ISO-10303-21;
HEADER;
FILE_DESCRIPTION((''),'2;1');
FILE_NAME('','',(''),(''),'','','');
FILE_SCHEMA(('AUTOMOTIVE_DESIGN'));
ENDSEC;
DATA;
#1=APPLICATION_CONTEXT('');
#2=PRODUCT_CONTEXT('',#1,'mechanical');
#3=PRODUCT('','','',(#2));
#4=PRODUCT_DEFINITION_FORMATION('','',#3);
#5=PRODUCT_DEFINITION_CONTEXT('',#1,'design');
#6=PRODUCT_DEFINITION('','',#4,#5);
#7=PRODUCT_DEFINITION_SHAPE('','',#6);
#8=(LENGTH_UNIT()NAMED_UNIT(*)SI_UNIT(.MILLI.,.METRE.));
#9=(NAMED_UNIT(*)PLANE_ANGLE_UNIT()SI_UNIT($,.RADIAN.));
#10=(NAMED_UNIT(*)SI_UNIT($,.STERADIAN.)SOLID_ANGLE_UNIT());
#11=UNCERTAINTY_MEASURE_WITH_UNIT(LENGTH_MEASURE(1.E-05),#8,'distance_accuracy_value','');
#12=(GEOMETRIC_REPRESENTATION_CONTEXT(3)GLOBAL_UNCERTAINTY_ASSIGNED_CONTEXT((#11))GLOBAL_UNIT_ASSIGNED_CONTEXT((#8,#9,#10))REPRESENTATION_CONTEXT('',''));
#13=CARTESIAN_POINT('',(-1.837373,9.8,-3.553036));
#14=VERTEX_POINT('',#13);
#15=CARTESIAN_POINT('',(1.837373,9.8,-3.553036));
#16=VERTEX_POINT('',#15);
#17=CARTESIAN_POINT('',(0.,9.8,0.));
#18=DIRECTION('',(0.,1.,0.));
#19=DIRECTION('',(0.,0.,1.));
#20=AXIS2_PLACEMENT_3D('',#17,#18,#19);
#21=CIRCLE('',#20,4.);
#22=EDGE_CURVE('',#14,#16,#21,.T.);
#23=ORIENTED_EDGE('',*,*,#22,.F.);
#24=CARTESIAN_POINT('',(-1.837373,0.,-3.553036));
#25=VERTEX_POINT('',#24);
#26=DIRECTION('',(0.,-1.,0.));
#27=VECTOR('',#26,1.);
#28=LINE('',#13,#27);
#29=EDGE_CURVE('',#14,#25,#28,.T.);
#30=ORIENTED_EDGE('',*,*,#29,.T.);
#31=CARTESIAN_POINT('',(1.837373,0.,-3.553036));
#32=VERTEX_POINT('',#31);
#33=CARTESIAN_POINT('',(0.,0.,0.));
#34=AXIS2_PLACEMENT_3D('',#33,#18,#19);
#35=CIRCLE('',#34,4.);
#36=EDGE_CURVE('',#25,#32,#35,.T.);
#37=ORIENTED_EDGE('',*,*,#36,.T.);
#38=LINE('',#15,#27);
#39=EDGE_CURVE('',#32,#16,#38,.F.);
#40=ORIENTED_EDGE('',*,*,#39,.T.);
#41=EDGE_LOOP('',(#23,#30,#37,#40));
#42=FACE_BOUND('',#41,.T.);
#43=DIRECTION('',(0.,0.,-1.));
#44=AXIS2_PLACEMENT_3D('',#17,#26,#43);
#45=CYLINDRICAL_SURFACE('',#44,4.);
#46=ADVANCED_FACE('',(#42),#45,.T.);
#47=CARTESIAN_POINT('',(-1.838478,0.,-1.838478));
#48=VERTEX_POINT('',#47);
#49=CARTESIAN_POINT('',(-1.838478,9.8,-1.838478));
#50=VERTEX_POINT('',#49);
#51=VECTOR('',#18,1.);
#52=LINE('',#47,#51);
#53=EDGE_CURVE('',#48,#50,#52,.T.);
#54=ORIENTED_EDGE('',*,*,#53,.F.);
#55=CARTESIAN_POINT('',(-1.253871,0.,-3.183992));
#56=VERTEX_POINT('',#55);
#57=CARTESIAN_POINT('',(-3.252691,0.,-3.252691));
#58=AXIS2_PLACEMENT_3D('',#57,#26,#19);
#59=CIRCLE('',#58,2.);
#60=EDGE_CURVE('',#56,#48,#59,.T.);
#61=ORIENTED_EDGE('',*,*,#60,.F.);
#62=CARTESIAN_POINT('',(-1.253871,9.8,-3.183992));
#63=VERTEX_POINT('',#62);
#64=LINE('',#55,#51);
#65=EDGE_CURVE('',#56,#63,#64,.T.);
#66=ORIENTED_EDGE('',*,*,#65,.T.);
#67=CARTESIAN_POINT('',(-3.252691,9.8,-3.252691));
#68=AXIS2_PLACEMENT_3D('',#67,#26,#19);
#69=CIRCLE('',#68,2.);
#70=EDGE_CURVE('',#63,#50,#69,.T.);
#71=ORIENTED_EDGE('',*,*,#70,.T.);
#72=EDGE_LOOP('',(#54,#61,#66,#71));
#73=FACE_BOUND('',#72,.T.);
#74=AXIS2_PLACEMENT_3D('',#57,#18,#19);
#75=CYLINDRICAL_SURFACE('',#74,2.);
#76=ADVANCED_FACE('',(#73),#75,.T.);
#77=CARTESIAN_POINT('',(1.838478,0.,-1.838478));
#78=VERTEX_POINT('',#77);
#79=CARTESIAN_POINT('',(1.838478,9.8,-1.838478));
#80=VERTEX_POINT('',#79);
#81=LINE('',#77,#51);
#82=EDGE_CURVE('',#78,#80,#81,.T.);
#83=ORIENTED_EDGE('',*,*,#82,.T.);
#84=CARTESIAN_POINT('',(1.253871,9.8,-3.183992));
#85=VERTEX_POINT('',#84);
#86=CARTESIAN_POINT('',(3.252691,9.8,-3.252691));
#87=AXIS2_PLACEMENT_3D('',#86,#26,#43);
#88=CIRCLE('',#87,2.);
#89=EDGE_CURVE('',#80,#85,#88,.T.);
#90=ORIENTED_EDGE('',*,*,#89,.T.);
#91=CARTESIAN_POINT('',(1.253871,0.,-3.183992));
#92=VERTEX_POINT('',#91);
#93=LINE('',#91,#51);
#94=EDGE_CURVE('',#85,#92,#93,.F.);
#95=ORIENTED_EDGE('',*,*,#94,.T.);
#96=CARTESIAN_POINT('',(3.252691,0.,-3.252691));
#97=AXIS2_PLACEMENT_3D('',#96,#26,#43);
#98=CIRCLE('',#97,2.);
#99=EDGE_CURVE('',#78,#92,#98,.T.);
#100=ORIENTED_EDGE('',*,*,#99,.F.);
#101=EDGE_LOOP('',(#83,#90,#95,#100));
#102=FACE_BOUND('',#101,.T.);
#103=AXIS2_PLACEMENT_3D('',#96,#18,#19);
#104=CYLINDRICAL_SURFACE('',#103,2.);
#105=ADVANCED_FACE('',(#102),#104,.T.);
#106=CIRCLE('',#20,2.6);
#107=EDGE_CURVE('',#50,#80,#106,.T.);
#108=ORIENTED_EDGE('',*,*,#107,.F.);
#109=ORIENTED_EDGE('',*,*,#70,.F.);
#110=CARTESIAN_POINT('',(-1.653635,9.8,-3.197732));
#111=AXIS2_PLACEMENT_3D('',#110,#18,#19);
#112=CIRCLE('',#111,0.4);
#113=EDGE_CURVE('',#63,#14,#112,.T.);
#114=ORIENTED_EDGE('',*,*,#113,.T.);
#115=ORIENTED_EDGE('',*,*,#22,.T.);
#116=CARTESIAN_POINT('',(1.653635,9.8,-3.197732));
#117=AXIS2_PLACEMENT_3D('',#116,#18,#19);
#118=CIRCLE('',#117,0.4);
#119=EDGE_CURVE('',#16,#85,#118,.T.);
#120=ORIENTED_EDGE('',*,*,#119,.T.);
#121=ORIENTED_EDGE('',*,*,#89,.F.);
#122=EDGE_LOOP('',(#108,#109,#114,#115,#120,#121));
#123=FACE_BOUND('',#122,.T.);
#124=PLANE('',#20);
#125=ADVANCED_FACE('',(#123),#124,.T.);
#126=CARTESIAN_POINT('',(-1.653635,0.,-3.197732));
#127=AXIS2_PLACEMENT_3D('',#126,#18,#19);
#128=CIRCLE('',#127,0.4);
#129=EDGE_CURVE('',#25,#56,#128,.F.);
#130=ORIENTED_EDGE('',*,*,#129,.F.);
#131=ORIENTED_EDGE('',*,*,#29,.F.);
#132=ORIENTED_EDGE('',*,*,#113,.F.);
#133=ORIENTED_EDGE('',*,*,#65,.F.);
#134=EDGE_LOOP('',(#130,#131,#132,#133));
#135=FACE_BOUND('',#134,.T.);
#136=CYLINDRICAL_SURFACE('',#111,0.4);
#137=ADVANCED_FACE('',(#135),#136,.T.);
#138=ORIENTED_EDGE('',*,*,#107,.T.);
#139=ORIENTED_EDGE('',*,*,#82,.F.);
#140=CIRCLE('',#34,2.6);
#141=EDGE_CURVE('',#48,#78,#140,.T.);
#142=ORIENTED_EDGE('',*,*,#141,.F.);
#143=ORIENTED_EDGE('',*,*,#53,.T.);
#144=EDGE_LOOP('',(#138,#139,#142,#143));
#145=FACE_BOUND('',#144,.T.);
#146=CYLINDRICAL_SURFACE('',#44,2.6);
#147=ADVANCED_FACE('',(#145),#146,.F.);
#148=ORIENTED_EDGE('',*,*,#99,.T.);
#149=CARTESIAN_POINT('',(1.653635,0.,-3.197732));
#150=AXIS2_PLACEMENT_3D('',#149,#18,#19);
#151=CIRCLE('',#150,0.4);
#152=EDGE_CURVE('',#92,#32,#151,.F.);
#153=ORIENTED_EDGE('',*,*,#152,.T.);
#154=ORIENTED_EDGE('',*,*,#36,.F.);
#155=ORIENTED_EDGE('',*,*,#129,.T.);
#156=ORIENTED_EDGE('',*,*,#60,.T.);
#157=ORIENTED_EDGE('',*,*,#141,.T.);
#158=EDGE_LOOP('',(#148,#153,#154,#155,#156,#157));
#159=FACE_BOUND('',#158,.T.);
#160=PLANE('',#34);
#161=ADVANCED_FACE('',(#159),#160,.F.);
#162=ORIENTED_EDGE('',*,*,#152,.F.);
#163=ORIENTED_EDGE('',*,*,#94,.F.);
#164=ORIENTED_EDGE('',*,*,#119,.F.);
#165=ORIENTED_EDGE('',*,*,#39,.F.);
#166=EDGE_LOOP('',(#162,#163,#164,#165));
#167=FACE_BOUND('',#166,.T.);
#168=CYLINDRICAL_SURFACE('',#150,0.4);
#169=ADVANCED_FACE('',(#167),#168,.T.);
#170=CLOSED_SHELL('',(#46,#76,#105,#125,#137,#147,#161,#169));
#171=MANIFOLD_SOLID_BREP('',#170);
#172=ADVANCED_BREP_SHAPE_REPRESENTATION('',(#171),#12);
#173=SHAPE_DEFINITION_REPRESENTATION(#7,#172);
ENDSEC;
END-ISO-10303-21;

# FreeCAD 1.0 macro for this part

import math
import FreeCAD as App
import Part
import Sketcher


def edges_at(feature, points):
    """Names of the edges that pass closest to the given points."""
    edges = feature.Shape.Edges
    near = lambda p: min(range(len(edges)), key=lambda i: edges[i].distToShape(Part.Vertex(*p))[0])
    return sorted({f"Edge{near(p) + 1}" for p in points})

doc = App.newDocument("Part")
body = doc.addObject("PartDesign::Body", "Body")

sketch1 = body.newObject("Sketcher::SketchObject", "Sketch")
sketch1.AttachmentSupport = (doc.getObject("XZ_Plane"), [""])
sketch1.MapMode = "FlatFace"
sketch1.addGeometry(Part.Circle(App.Vector(0, 0, 0), App.Vector(0, 0, 1), 4), False)
sketch1.addGeometry(Part.Circle(App.Vector(0, 0, 0), App.Vector(0, 0, 1), 2.6), False)
sketch1.addConstraint(Sketcher.Constraint("Coincident", 0, 3, -1, 1))
sketch1.addConstraint(Sketcher.Constraint("Coincident", 1, 3, -1, 1))
sketch1.addConstraint(Sketcher.Constraint("Diameter", 0, 8.0))
sketch1.addConstraint(Sketcher.Constraint("Diameter", 1, 5.2))
pad1 = body.newObject("PartDesign::Pad", "Pad")
pad1.Profile = sketch1
pad1.Length = 9.8
pad1.Reversed = True

sketch2 = body.newObject("Sketcher::SketchObject", "Sketch001")
sketch2.AttachmentSupport = (doc.getObject("XZ_Plane"), [""])
sketch2.MapMode = "FlatFace"
sketch2.AttachmentOffset = App.Placement(App.Vector(0, 0, -9.8), App.Rotation())
sketch2.addGeometry(Part.ArcOfCircle(Part.Circle(App.Vector(-3.3, -3.3, 0), App.Vector(0, 0, 1), 2), math.radians(-15), math.radians(45)), False)
sketch2.addGeometry(Part.ArcOfCircle(Part.Circle(App.Vector(0, 0, 0), App.Vector(0, 0, 1), 2.6), math.radians(-135), math.radians(-45)), False)
sketch2.addGeometry(Part.ArcOfCircle(Part.Circle(App.Vector(3.3, -3.3, 0), App.Vector(0, 0, 1), 2), math.radians(135), math.radians(195)), False)
sketch2.addGeometry(Part.ArcOfCircle(Part.Circle(App.Vector(0, 0, 0), App.Vector(0, 0, 1), 4), math.radians(-109), math.radians(-71)), False)
sketch2.addConstraint(Sketcher.Constraint("Tangent", 0, 2, 1, 1))
sketch2.addConstraint(Sketcher.Constraint("Tangent", 1, 2, 2, 1))
sketch2.addConstraint(Sketcher.Constraint("Coincident", 2, 2, 3, 2))
sketch2.addConstraint(Sketcher.Constraint("Coincident", 3, 1, 0, 1))
sketch2.addConstraint(Sketcher.Constraint("Coincident", 1, 3, -1, 1))
sketch2.addConstraint(Sketcher.Constraint("Coincident", 3, 3, -1, 1))
sketch2.addConstraint(Sketcher.Constraint("Equal", 0, 2))
sketch2.addConstraint(Sketcher.Constraint("Horizontal", 0, 3, 2, 3))
sketch2.addConstraint(Sketcher.Constraint("Radius", 0, 2.0))
sketch2.addConstraint(Sketcher.Constraint("Radius", 3, 4.0))
sketch2.addConstraint(Sketcher.Constraint("Radius", 1, 2.6))
sketch2.addConstraint(Sketcher.Constraint("DistanceX", 0, 3, -1, 1, 3.252691))
pocket1 = body.newObject("PartDesign::Pocket", "Pocket")
pocket1.Profile = sketch2
pocket1.Type = "ThroughAll"
pocket1.Reversed = True
doc.recompute()

fillet = body.newObject("PartDesign::Fillet", "Fillet")
fillet.Base = (pocket1, edges_at(pocket1, [(-1.322, 4.9, -3.775), (1.322, 4.9, -3.775)]))
fillet.Radius = 0.4

doc.recompute()
